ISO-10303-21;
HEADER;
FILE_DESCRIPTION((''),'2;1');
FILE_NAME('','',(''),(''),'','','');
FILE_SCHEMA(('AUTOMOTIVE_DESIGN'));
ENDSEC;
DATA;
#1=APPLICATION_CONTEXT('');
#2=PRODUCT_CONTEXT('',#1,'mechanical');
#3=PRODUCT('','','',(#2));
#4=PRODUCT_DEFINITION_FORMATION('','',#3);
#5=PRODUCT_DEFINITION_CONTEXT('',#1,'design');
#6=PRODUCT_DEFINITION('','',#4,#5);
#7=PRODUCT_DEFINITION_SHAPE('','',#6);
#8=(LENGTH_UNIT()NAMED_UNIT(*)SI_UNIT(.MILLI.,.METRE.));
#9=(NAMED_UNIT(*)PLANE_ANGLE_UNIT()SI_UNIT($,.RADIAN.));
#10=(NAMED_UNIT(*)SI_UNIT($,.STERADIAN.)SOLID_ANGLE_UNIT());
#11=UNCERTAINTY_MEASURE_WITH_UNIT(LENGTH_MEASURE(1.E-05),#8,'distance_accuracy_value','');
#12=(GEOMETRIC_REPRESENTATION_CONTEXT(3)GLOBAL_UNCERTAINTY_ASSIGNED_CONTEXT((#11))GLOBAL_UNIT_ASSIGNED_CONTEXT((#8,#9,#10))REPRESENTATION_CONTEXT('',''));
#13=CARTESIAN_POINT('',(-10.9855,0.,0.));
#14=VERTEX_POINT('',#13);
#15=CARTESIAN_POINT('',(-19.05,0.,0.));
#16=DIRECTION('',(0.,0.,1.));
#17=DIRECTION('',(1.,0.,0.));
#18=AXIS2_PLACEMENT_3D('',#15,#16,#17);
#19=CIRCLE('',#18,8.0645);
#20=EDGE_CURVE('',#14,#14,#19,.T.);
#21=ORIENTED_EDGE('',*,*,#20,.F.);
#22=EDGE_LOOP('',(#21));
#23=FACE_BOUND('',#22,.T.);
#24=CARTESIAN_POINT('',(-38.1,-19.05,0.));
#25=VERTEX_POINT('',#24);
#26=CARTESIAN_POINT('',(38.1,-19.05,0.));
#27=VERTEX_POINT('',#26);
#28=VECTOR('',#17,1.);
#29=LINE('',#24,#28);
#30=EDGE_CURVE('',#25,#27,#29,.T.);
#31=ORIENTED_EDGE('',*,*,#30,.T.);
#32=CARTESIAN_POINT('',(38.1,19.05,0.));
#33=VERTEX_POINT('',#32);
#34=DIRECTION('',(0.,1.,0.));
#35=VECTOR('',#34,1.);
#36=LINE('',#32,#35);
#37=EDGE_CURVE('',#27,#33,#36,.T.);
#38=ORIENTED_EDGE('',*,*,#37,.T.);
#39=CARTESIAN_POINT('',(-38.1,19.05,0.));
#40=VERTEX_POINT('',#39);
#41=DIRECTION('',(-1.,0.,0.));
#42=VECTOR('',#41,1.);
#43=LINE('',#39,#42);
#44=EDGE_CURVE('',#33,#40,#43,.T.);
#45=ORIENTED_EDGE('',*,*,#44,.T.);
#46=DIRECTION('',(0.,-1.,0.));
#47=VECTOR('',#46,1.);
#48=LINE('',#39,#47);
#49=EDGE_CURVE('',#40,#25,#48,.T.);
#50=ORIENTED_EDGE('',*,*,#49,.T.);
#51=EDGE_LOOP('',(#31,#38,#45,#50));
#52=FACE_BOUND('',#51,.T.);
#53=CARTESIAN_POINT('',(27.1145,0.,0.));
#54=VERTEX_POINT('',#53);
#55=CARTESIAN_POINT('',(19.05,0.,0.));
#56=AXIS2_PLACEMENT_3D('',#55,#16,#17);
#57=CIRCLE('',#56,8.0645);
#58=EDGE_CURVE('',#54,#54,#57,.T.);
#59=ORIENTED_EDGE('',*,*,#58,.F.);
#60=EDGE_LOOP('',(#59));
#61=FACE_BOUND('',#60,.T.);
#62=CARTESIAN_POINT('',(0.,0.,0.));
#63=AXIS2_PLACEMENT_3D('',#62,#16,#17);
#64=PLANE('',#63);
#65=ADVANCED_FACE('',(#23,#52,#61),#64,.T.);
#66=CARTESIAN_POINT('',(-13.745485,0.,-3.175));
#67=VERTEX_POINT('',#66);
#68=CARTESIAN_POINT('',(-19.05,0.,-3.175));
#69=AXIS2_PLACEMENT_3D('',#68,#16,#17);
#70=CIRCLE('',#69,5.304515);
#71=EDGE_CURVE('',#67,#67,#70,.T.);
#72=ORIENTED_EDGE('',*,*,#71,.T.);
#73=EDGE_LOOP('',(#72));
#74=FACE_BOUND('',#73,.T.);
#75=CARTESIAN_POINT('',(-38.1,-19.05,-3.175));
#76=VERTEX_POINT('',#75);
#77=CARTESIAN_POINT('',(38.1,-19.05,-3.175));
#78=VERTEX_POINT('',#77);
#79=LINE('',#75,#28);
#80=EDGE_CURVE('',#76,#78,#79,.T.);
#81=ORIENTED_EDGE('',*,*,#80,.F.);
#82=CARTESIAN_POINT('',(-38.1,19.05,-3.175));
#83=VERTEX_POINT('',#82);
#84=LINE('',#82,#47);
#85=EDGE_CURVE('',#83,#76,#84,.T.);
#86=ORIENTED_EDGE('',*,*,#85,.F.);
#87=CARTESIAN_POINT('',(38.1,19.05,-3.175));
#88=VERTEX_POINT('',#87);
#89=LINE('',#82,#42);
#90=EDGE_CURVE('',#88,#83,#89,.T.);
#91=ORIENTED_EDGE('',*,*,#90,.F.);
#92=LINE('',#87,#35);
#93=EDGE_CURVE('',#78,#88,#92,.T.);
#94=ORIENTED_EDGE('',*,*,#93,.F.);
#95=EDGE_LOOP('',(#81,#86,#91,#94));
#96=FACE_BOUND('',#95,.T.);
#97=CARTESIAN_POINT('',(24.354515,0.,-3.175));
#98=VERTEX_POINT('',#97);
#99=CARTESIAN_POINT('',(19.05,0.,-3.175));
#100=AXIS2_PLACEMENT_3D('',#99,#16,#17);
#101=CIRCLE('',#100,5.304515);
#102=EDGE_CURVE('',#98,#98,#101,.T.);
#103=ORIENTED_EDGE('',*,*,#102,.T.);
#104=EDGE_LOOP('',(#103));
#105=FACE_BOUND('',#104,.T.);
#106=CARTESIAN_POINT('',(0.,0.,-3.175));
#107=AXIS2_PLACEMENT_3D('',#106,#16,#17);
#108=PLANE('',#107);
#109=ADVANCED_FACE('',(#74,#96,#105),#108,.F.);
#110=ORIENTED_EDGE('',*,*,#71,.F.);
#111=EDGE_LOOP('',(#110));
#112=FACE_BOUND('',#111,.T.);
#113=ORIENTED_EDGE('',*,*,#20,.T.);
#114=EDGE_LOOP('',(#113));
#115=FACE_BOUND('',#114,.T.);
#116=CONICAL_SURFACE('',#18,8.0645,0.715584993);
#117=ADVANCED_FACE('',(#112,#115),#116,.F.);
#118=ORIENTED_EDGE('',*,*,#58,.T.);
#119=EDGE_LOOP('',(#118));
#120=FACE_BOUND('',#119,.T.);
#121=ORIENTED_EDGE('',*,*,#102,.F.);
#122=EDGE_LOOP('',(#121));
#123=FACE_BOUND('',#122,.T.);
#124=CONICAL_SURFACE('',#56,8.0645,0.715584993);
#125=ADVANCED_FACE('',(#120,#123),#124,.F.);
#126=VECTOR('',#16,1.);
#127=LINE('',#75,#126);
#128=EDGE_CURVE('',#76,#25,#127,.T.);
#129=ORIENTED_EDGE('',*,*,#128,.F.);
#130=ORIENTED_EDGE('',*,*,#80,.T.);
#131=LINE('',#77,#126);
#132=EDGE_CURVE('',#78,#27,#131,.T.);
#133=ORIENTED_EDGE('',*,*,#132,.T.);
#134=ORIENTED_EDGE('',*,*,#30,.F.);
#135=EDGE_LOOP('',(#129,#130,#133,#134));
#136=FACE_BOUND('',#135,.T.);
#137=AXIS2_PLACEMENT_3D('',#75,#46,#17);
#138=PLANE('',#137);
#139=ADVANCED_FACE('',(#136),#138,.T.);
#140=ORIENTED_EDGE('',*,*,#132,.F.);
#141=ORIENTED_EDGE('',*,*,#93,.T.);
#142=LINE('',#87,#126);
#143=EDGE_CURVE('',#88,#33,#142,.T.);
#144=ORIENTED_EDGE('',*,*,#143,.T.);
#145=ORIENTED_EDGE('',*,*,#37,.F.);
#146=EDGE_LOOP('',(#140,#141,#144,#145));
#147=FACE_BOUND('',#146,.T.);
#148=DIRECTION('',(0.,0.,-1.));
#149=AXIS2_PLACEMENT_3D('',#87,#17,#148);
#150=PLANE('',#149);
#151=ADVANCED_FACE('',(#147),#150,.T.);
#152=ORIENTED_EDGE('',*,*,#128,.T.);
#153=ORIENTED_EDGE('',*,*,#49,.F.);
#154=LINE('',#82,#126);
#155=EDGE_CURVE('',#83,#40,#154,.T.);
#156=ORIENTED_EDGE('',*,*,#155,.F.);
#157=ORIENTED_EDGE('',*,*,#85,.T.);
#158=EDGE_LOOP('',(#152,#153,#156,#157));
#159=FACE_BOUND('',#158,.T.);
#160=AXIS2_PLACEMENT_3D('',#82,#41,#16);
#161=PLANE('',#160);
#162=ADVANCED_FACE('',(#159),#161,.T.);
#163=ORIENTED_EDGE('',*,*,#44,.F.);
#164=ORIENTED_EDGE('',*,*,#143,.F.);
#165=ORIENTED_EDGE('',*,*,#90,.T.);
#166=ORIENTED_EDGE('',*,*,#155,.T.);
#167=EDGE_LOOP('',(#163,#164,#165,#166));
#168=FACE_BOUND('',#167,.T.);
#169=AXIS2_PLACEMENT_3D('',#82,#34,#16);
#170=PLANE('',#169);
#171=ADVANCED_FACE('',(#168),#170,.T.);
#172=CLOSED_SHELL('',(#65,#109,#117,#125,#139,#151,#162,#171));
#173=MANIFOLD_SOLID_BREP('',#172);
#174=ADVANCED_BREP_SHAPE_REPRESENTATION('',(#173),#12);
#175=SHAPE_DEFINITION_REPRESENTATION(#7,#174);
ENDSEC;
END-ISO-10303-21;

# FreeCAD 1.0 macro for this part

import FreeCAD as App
import Part
import Sketcher
Q = App.Units.Quantity

doc = App.newDocument("Part")
body = doc.addObject("PartDesign::Body", "Body")

# Sketch on XY plane
sketch1 = body.newObject("Sketcher::SketchObject", "Sketch")
sketch1.AttachmentSupport = (doc.getObject("XY_Plane"), [""])
sketch1.MapMode = "FlatFace"
sketch1.addGeometry([
    Part.LineSegment(App.Vector(-38.1, 19.1, 0), App.Vector(-38.1, -19.1, 0)),  # 0
    Part.LineSegment(App.Vector(-38.1, -19.1, 0), App.Vector(38.1, -19.1, 0)),  # 1
    Part.LineSegment(App.Vector(38.1, -19.1, 0), App.Vector(38.1, 19.1, 0)),  # 2
    Part.LineSegment(App.Vector(38.1, 19.1, 0), App.Vector(-38.1, 19.1, 0)),  # 3
    Part.Circle(App.Vector(-19.1, 0, 0), App.Vector(0, 0, 1), 4.2),  # 4
    Part.Circle(App.Vector(19.1, 0, 0), App.Vector(0, 0, 1), 4.2),  # 5
], False)
sketch1.addConstraint([
    Sketcher.Constraint("Coincident", 0, 2, 1, 1),
    Sketcher.Constraint("Coincident", 1, 2, 2, 1),
    Sketcher.Constraint("Coincident", 2, 2, 3, 1),
    Sketcher.Constraint("Coincident", 3, 2, 0, 1),
    Sketcher.Constraint("Vertical", 0),
    Sketcher.Constraint("Horizontal", 1),
    Sketcher.Constraint("Vertical", 2),
    Sketcher.Constraint("Horizontal", 3),
    Sketcher.Constraint("Symmetric", 4, 3, 5, 3, -1, 1),
    Sketcher.Constraint("Symmetric", 0, 2, 2, 2, -1, 1),
    Sketcher.Constraint("PointOnObject", 4, 3, -1),
    Sketcher.Constraint("Diameter", 4, Q("0.33 in")),
    Sketcher.Constraint("DistanceX", 1, 1, 1, 2, Q("3 in")),
    Sketcher.Constraint("Diameter", 5, Q("0.328 in")),
    Sketcher.Constraint("DistanceY", 0, 2, 0, 1, Q("1.5 in")),
    Sketcher.Constraint("DistanceX", 4, 3, 5, 3, Q("1.5 in")),
])
pad1 = body.newObject("PartDesign::Pad", "Pad")
pad1.Profile = sketch1
pad1.Length = Q("0.125 in")
pad1.Reversed = True

# Sketch on XY plane
sketch2 = body.newObject("Sketcher::SketchObject", "Sketch001")
sketch2.AttachmentSupport = (doc.getObject("XY_Plane"), [""])
sketch2.MapMode = "FlatFace"
sketch2.addGeometry([
    Part.Circle(App.Vector(-19.1, 0, 0), App.Vector(0, 0, 1), 4.2),
    Part.Circle(App.Vector(19.1, 0, 0), App.Vector(0, 0, 1), 4.2),
], False)
sketch2.addConstraint([
    Sketcher.Constraint("Equal", 0, 1),
    Sketcher.Constraint("Symmetric", 0, 3, 1, 3, -1, 1),
    Sketcher.Constraint("PointOnObject", 0, 3, -1),
    Sketcher.Constraint("Diameter", 0, Q("0.332 in")),
    Sketcher.Constraint("DistanceX", 0, 3, 1, 3, Q("1.5 in")),
])
doc.recompute()
hole = body.newObject("PartDesign::Hole", "Hole")
hole.Profile = sketch2
hole.ThreadType = "None"
hole.Diameter = Q("0.332 in")
hole.DepthType = "Dimension"
hole.Depth = Q("1.29 in")
hole.DrillPoint = "Angled"
hole.DrillPointAngle = 118
hole.HoleCutType = "Countersink"
hole.HoleCutDiameter = Q("0.635 in")
hole.HoleCutCountersinkAngle = 82

doc.recompute()
